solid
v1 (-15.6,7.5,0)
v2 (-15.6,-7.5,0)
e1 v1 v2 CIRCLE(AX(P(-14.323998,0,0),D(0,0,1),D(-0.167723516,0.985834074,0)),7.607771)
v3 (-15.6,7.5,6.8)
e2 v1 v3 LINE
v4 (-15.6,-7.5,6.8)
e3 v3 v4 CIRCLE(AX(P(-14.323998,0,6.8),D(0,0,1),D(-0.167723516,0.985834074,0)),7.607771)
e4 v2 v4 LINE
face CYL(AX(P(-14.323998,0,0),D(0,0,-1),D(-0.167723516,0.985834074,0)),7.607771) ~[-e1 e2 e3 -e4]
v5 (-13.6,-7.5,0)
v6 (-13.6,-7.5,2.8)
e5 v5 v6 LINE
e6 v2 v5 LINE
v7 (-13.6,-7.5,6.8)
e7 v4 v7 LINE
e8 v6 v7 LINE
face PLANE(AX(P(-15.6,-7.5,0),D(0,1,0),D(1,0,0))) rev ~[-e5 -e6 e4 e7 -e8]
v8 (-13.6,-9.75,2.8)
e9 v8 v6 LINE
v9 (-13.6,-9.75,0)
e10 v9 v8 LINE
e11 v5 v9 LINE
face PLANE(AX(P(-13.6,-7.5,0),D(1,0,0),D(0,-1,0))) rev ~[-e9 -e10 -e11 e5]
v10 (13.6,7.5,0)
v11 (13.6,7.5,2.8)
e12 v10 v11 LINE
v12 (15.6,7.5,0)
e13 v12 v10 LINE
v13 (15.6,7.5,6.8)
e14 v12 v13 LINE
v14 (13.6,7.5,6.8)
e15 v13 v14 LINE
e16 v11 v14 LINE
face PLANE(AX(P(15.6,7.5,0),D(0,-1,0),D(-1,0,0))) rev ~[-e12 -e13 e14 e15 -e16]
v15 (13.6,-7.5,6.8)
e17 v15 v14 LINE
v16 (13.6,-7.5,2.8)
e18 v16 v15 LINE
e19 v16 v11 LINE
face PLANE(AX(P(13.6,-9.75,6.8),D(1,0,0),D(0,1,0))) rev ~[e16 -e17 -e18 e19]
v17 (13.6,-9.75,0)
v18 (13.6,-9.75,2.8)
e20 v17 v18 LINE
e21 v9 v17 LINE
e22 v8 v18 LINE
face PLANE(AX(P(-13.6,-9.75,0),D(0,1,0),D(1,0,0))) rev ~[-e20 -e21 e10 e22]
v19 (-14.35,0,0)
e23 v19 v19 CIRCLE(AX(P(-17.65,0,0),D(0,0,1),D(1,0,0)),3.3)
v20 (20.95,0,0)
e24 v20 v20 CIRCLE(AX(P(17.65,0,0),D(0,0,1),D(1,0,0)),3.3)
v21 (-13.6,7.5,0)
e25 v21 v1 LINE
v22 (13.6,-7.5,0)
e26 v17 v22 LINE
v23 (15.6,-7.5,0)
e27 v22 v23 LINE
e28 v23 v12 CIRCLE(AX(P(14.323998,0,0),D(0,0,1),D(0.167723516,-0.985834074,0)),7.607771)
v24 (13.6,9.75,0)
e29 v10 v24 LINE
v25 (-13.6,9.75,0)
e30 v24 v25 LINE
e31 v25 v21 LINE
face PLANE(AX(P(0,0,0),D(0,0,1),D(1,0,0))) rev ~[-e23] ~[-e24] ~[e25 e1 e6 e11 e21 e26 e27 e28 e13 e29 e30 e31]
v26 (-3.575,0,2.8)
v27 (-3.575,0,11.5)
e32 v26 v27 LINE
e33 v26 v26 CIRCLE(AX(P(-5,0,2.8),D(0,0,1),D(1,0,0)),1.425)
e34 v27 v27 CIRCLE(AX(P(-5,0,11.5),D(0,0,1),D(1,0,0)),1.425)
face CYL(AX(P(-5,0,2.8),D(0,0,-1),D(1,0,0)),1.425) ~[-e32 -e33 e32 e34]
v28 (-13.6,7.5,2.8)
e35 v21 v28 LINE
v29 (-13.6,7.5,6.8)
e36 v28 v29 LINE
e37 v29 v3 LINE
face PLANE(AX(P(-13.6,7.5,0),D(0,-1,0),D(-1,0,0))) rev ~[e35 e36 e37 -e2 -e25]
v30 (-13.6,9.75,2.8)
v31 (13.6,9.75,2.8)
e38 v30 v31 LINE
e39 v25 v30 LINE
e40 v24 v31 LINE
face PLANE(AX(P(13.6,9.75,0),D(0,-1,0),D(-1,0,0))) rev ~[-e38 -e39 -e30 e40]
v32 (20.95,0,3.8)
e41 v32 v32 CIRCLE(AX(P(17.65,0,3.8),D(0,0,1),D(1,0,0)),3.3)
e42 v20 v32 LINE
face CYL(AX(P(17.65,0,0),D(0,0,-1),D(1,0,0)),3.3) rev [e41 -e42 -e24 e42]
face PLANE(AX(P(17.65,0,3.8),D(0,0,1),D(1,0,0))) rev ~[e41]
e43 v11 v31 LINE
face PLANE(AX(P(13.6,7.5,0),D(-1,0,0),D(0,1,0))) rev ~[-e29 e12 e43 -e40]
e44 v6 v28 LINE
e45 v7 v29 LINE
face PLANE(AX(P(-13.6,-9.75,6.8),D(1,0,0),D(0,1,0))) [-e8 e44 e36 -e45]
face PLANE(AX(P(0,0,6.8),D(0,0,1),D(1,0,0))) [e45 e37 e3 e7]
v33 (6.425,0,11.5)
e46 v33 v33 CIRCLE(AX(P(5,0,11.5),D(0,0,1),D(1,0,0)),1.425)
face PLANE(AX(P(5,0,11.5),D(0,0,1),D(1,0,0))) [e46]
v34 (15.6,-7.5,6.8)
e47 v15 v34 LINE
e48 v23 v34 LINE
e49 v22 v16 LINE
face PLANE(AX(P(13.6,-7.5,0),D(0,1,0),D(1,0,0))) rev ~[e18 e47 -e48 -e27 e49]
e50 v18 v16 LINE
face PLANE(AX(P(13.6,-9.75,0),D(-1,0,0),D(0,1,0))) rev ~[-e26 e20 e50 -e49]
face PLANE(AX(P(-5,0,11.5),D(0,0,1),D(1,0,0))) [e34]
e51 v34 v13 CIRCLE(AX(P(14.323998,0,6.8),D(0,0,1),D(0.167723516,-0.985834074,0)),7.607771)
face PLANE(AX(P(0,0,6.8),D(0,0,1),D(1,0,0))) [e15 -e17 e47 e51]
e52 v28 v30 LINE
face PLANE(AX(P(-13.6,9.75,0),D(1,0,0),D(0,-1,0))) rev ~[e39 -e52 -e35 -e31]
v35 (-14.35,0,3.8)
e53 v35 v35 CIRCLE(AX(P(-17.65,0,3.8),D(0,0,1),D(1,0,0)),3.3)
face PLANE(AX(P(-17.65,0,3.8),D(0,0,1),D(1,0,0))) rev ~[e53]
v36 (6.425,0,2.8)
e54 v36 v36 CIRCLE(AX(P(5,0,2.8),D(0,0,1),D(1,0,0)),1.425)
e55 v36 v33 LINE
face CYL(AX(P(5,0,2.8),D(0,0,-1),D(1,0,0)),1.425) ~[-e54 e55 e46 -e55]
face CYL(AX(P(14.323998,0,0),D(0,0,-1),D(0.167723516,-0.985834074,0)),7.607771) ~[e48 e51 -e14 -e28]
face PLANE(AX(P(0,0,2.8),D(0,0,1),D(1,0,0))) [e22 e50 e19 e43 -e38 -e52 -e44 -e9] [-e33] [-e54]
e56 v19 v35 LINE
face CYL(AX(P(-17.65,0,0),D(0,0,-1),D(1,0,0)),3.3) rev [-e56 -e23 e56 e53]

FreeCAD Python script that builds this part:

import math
import FreeCAD as App
import Part
import Sketcher

V = App.Vector

doc = App.newDocument("Part")
body = doc.addObject("PartDesign::Body", "Body")

sketch1 = body.newObject("Sketcher::SketchObject", "Sketch")
sketch1.AttachmentSupport = (doc.getObject("XY_Plane"), [""])
sketch1.MapMode = "FlatFace"
sketch1.addGeometry(Part.LineSegment(V(13.6, 7.5, 0), V(13.6, 9.8, 0)), False)
sketch1.addGeometry(Part.LineSegment(V(13.6, 9.8, 0), V(-13.6, 9.8, 0)), False)
sketch1.addGeometry(Part.LineSegment(V(-13.6, 9.8, 0), V(-13.6, 7.5, 0)), False)
sketch1.addGeometry(Part.LineSegment(V(-13.6, 7.5, 0), V(-15.6, 7.5, 0)), False)
sketch1.addGeometry(Part.ArcOfCircle(Part.Circle(V(-14.3, 0, 0), V(0, 0, 1), 7.6), math.radians(100), math.radians(260)), False)
sketch1.addGeometry(Part.LineSegment(V(-15.6, -7.5, 0), V(-13.6, -7.5, 0)), False)
sketch1.addGeometry(Part.LineSegment(V(-13.6, -7.5, 0), V(-13.6, -9.8, 0)), False)
sketch1.addGeometry(Part.LineSegment(V(-13.6, -9.8, 0), V(13.6, -9.8, 0)), False)
sketch1.addGeometry(Part.LineSegment(V(13.6, -9.8, 0), V(13.6, -7.5, 0)), False)
sketch1.addGeometry(Part.LineSegment(V(13.6, -7.5, 0), V(15.6, -7.5, 0)), False)
sketch1.addGeometry(Part.ArcOfCircle(Part.Circle(V(14.3, 0, 0), V(0, 0, 1), 7.6), math.radians(-80), math.radians(80)), False)
sketch1.addGeometry(Part.LineSegment(V(15.6, 7.5, 0), V(13.6, 7.5, 0)), False)
sketch1.addConstraint(Sketcher.Constraint("Coincident", 0, 2, 1, 1))
sketch1.addConstraint(Sketcher.Constraint("Coincident", 1, 2, 2, 1))
sketch1.addConstraint(Sketcher.Constraint("Coincident", 2, 2, 3, 1))
sketch1.addConstraint(Sketcher.Constraint("Coincident", 3, 2, 4, 1))
sketch1.addConstraint(Sketcher.Constraint("Coincident", 4, 2, 5, 1))
sketch1.addConstraint(Sketcher.Constraint("Coincident", 5, 2, 6, 1))
sketch1.addConstraint(Sketcher.Constraint("Coincident", 6, 2, 7, 1))
sketch1.addConstraint(Sketcher.Constraint("Coincident", 7, 2, 8, 1))
sketch1.addConstraint(Sketcher.Constraint("Coincident", 8, 2, 9, 1))
sketch1.addConstraint(Sketcher.Constraint("Coincident", 9, 2, 10, 1))
sketch1.addConstraint(Sketcher.Constraint("Coincident", 10, 2, 11, 1))
sketch1.addConstraint(Sketcher.Constraint("Coincident", 11, 2, 0, 1))
sketch1.addConstraint(Sketcher.Constraint("Vertical", 0))
sketch1.addConstraint(Sketcher.Constraint("Horizontal", 1))
sketch1.addConstraint(Sketcher.Constraint("Vertical", 2))
sketch1.addConstraint(Sketcher.Constraint("Horizontal", 3))
sketch1.addConstraint(Sketcher.Constraint("Horizontal", 5))
sketch1.addConstraint(Sketcher.Constraint("Vertical", 6))
sketch1.addConstraint(Sketcher.Constraint("Horizontal", 7))
sketch1.addConstraint(Sketcher.Constraint("Vertical", 8))
sketch1.addConstraint(Sketcher.Constraint("Horizontal", 9))
sketch1.addConstraint(Sketcher.Constraint("Horizontal", 11))
sketch1.addConstraint(Sketcher.Constraint("Equal", 4, 10))
sketch1.addConstraint(Sketcher.Constraint("Symmetric", 4, 3, 10, 3, -1, 1))
sketch1.addConstraint(Sketcher.Constraint("Symmetric", 0, 2, 6, 2, -1, 1))
sketch1.addConstraint(Sketcher.Constraint("Symmetric", 2, 2, 8, 2, -1, 1))
sketch1.addConstraint(Sketcher.Constraint("Symmetric", 5, 2, 8, 2, -2))
sketch1.addConstraint(Sketcher.Constraint("Symmetric", 3, 2, 10, 2, -2))
sketch1.addConstraint(Sketcher.Constraint("DistanceX", 3, 2, 3, 1, 2.0))
sketch1.addConstraint(Sketcher.Constraint("DistanceX", 1, 2, 1, 1, 27.2))
sketch1.addConstraint(Sketcher.Constraint("DistanceY", 4, 2, 3, 2, 15.0))
sketch1.addConstraint(Sketcher.Constraint("DistanceY", 0, 1, 0, 2, 2.25))
sketch1.addConstraint(Sketcher.Constraint("Radius", 4, 7.607771))
pad1 = body.newObject("PartDesign::Pad", "Pad")
pad1.Profile = sketch1
pad1.Length = 6.8

sketch2 = body.newObject("Sketcher::SketchObject", "Sketch001")
sketch2.AttachmentSupport = (doc.getObject("XY_Plane"), [""])
sketch2.MapMode = "FlatFace"
sketch2.AttachmentOffset = App.Placement(V(0, 0, 6.8), App.Rotation())
sketch2.addGeometry(Part.LineSegment(V(-14, 10, 0), V(-14, -10, 0)), False)
sketch2.addGeometry(Part.LineSegment(V(-14, -10, 0), V(14, -10, 0)), False)
sketch2.addGeometry(Part.LineSegment(V(14, -10, 0), V(14, 10, 0)), False)
sketch2.addGeometry(Part.LineSegment(V(14, 10, 0), V(-14, 10, 0)), False)
sketch2.addConstraint(Sketcher.Constraint("Coincident", 0, 2, 1, 1))
sketch2.addConstraint(Sketcher.Constraint("Coincident", 1, 2, 2, 1))
sketch2.addConstraint(Sketcher.Constraint("Coincident", 2, 2, 3, 1))
sketch2.addConstraint(Sketcher.Constraint("Coincident", 3, 2, 0, 1))
sketch2.addConstraint(Sketcher.Constraint("Vertical", 0))
sketch2.addConstraint(Sketcher.Constraint("Horizontal", 1))
sketch2.addConstraint(Sketcher.Constraint("Vertical", 2))
sketch2.addConstraint(Sketcher.Constraint("Horizontal", 3))
sketch2.addConstraint(Sketcher.Constraint("Symmetric", 0, 2, 2, 2, -1, 1))
sketch2.addConstraint(Sketcher.Constraint("DistanceX", 1, 1, 1, 2, 27.2))
sketch2.addConstraint(Sketcher.Constraint("DistanceY", 0, 2, 0, 1, 19.5))
pocket1 = body.newObject("PartDesign::Pocket", "Pocket")
pocket1.Profile = sketch2
pocket1.Length = 4

sketch3 = body.newObject("Sketcher::SketchObject", "Sketch002")
sketch3.AttachmentSupport = (doc.getObject("XY_Plane"), [""])
sketch3.MapMode = "FlatFace"
sketch3.addGeometry(Part.Circle(V(17.6, 0, 0), V(0, 0, 1), 3.3), False)
sketch3.addGeometry(Part.Circle(V(-17.6, 0, 0), V(0, 0, 1), 3.3), False)
sketch3.addConstraint(Sketcher.Constraint("Equal", 0, 1))
sketch3.addConstraint(Sketcher.Constraint("Symmetric", 0, 3, 1, 3, -1, 1))
sketch3.addConstraint(Sketcher.Constraint("PointOnObject", 0, 3, -1))
sketch3.addConstraint(Sketcher.Constraint("Diameter", 0, 6.6))
sketch3.addConstraint(Sketcher.Constraint("DistanceX", 1, 3, 0, 3, 35.3))
pocket2 = body.newObject("PartDesign::Pocket", "Pocket001")
pocket2.Profile = sketch3
pocket2.Length = 3.8
pocket2.Reversed = True

sketch4 = body.newObject("Sketcher::SketchObject", "Sketch003")
sketch4.AttachmentSupport = (doc.getObject("XY_Plane"), [""])
sketch4.MapMode = "FlatFace"
sketch4.AttachmentOffset = App.Placement(V(0, 0, 2.8), App.Rotation())
sketch4.addGeometry(Part.Circle(V(5, 0, 0), V(0, 0, 1), 1.4), False)
sketch4.addGeometry(Part.Circle(V(-5, 0, 0), V(0, 0, 1), 1.4), False)
sketch4.addConstraint(Sketcher.Constraint("Equal", 0, 1))
sketch4.addConstraint(Sketcher.Constraint("Symmetric", 0, 3, 1, 3, -1, 1))
sketch4.addConstraint(Sketcher.Constraint("PointOnObject", 0, 3, -1))
sketch4.addConstraint(Sketcher.Constraint("Diameter", 0, 2.85))
sketch4.addConstraint(Sketcher.Constraint("DistanceX", -1, 1, 0, 3, 5.0))
pad2 = body.newObject("PartDesign::Pad", "Pad001")
pad2.Profile = sketch4
pad2.Length = 8.7

doc.recompute()
